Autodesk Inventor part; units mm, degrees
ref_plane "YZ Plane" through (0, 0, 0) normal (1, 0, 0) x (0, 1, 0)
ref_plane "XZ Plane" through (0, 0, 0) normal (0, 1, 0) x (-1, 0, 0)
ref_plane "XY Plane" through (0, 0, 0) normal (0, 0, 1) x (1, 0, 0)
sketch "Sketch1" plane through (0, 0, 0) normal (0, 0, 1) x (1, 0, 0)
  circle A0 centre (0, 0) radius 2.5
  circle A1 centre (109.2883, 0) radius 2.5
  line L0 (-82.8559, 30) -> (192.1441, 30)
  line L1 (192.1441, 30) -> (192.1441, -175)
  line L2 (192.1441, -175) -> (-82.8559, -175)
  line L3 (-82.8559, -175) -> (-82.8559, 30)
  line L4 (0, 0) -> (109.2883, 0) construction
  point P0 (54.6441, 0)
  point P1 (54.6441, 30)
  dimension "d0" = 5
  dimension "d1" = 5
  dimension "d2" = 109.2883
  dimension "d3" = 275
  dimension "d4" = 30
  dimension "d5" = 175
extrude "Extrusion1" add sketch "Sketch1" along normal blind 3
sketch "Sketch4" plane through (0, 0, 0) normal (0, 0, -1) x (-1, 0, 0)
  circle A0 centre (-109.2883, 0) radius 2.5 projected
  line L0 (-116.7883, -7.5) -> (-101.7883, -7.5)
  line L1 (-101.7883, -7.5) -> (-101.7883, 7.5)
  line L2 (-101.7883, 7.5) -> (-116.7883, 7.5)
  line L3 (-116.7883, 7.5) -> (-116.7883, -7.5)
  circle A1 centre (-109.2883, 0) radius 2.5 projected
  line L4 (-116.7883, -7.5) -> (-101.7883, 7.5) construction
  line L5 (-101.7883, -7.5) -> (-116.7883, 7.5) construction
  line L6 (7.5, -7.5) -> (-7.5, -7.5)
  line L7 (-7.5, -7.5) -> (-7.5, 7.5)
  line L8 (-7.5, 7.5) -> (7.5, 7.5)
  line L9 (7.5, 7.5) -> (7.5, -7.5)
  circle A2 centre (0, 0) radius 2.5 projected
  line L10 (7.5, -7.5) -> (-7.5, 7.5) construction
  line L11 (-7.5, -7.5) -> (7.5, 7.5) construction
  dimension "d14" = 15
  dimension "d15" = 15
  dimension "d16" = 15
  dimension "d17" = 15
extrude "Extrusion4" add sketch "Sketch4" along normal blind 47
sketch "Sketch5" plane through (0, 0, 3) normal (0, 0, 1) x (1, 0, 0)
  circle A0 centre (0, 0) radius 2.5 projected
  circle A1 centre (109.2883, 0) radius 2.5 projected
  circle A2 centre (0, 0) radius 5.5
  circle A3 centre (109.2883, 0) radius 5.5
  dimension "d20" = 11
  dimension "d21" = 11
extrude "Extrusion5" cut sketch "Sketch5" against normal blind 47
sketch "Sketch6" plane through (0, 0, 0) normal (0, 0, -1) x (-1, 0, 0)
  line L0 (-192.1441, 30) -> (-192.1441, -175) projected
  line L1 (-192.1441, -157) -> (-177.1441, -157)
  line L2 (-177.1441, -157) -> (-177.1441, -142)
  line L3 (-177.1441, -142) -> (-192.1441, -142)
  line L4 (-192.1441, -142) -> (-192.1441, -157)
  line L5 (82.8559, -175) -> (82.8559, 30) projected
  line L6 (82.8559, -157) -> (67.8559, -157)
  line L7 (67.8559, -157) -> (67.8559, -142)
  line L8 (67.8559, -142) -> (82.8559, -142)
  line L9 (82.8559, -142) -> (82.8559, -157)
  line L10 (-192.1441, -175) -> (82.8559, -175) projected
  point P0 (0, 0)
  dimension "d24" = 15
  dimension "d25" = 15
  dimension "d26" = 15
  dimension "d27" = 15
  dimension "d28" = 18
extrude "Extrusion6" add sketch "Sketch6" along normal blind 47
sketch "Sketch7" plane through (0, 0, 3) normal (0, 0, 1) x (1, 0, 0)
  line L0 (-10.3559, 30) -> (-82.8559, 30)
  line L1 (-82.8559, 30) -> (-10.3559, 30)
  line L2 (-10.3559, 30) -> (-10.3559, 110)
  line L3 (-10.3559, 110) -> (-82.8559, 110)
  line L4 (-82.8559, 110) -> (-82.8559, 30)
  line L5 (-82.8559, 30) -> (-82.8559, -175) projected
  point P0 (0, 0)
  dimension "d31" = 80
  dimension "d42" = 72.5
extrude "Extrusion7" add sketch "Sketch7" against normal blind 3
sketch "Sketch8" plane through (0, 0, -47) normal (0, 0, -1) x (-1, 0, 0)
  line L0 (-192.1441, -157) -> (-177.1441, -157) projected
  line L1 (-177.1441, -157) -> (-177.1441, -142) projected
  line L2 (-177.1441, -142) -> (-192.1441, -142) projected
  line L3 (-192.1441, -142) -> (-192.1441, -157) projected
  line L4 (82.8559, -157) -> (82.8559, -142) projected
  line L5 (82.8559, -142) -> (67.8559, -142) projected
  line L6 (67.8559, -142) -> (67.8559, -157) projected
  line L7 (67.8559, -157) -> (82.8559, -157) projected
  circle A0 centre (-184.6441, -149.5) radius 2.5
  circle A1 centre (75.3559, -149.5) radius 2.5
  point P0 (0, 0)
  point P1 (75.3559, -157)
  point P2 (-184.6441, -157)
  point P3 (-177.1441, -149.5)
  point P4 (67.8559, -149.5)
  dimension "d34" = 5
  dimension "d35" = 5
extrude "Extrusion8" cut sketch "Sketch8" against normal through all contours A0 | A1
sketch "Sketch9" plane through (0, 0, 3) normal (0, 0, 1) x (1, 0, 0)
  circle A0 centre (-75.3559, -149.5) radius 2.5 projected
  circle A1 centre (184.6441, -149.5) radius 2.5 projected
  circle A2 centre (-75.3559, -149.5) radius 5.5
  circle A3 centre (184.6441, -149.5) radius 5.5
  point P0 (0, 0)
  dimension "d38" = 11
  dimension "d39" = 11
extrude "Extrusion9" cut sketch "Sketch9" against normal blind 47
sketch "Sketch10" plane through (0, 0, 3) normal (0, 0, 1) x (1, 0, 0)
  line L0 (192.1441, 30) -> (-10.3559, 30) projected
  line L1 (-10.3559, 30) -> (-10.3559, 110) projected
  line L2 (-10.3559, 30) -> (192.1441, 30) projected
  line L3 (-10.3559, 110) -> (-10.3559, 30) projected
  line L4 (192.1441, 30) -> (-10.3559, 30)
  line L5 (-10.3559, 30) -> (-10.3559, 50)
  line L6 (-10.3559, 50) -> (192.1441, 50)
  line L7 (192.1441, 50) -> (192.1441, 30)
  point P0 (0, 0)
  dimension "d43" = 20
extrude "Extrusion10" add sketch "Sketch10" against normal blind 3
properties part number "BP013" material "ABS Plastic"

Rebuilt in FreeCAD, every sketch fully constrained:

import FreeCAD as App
import Part
import Sketcher
from FreeCAD import Vector
Q = App.Units.Quantity

doc = App.newDocument("Part")
body = doc.addObject("PartDesign::Body", "Body")

# Sketch on XY plane
sketch1 = body.newObject("Sketcher::SketchObject", "Sketch")
sketch1.AttachmentSupport = (doc.getObject("XY_Plane"), [""])
sketch1.MapMode = "FlatFace"
sketch1.addGeometry([
    Part.LineSegment(Vector(192.1441, 30, 0), Vector(-82.8559, 30, 0)),  # 0
    Part.LineSegment(Vector(-82.8559, 30, 0), Vector(-82.8559, -175, 0)),  # 1
    Part.LineSegment(Vector(-82.8559, -175, 0), Vector(192.1441, -175, 0)),  # 2
    Part.LineSegment(Vector(192.1441, -175, 0), Vector(192.1441, 30, 0)),  # 3
    Part.Circle(Vector(0, 0, 0), Vector(0, 0, 1), 2.5),  # 4
    Part.Circle(Vector(109.2883, 0, 0), Vector(0, 0, 1), 2.5),  # 5
], False)
sketch1.addConstraint([
    Sketcher.Constraint("Coincident", 0, 2, 1, 1),
    Sketcher.Constraint("Coincident", 1, 2, 2, 1),
    Sketcher.Constraint("Coincident", 2, 2, 3, 1),
    Sketcher.Constraint("Coincident", 3, 2, 0, 1),
    Sketcher.Constraint("Horizontal", 0),
    Sketcher.Constraint("Vertical", 1),
    Sketcher.Constraint("Horizontal", 2),
    Sketcher.Constraint("Vertical", 3),
    Sketcher.Constraint("Coincident", 4, 3, -1, 1),
    Sketcher.Constraint("Equal", 4, 5),
    Sketcher.Constraint("PointOnObject", 5, 3, -1),
    Sketcher.Constraint("Diameter", 4, Q("5 mm")),
    Sketcher.Constraint("DistanceX", 0, 2, 0, 1, Q("275 mm")),
    Sketcher.Constraint("DistanceY", -1, 1, 0, 2, Q("30 mm")),
    Sketcher.Constraint("DistanceY", 1, 2, -1, 1, Q("175 mm")),
    Sketcher.Constraint("DistanceX", -1, 1, 5, 3, Q("109.2883 mm")),
    Sketcher.Constraint("DistanceX", 0, 2, -1, 1, Q("82.856 mm")),
])
pad1 = body.newObject("PartDesign::Pad", "Pad")
pad1.Profile = sketch1
pad1.Length = 3

# Sketch on XY plane
sketch2 = body.newObject("Sketcher::SketchObject", "Sketch001")
sketch2.AttachmentSupport = (doc.getObject("XY_Plane"), [""])
sketch2.MapMode = "FlatFace"
sketch2.addGeometry([
    Part.LineSegment(Vector(116.7883, 7.5, 0), Vector(116.7883, -7.5, 0)),  # 0
    Part.LineSegment(Vector(116.7883, -7.5, 0), Vector(101.7883, -7.5, 0)),  # 1
    Part.LineSegment(Vector(101.7883, -7.5, 0), Vector(101.7883, 7.5, 0)),  # 2
    Part.LineSegment(Vector(101.7883, 7.5, 0), Vector(116.7883, 7.5, 0)),  # 3
    Part.Circle(Vector(109.2883, 0, 0), Vector(0, 0, 1), 2.5),  # 4
    Part.LineSegment(Vector(7.5, -7.5, 0), Vector(-7.5, -7.5, 0)),  # 5
    Part.LineSegment(Vector(-7.5, -7.5, 0), Vector(-7.5, 7.5, 0)),  # 6
    Part.LineSegment(Vector(-7.5, 7.5, 0), Vector(7.5, 7.5, 0)),  # 7
    Part.LineSegment(Vector(7.5, 7.5, 0), Vector(7.5, -7.5, 0)),  # 8
    Part.Circle(Vector(0, 0, 0), Vector(0, 0, 1), 2.5),  # 9
], False)
sketch2.addConstraint([
    Sketcher.Constraint("Coincident", 0, 2, 1, 1),
    Sketcher.Constraint("Coincident", 1, 2, 2, 1),
    Sketcher.Constraint("Coincident", 2, 2, 3, 1),
    Sketcher.Constraint("Coincident", 3, 2, 0, 1),
    Sketcher.Constraint("Coincident", 5, 2, 6, 1),
    Sketcher.Constraint("Coincident", 6, 2, 7, 1),
    Sketcher.Constraint("Coincident", 7, 2, 8, 1),
    Sketcher.Constraint("Coincident", 8, 2, 5, 1),
    Sketcher.Constraint("Vertical", 0),
    Sketcher.Constraint("Horizontal", 1),
    Sketcher.Constraint("Vertical", 2),
    Sketcher.Constraint("Horizontal", 3),
    Sketcher.Constraint("Horizontal", 5),
    Sketcher.Constraint("Vertical", 6),
    Sketcher.Constraint("Horizontal", 7),
    Sketcher.Constraint("Vertical", 8),
    Sketcher.Constraint("Coincident", 9, 3, -1, 1),
    Sketcher.Constraint("Equal", 4, 9),
    Sketcher.Constraint("Symmetric", 5, 2, 7, 2, -1, 1),
    Sketcher.Constraint("PointOnObject", 4, 3, -1),
    Sketcher.Constraint("Horizontal", 1, 2, 5, 2),
    Sketcher.Constraint("Horizontal", 3, 2, 6, 2),
    Sketcher.Constraint("Equal", 3, 5),
    Sketcher.Constraint("Equal", 7, 0),
    Sketcher.Constraint("DistanceX", 1, 2, 1, 1, Q("15 mm")),
    Sketcher.Constraint("Diameter", 4, Q("5 mm")),
    Sketcher.Constraint("DistanceX", 4, 3, 0, 2, Q("7.5 mm")),
    Sketcher.Constraint("DistanceX", -1, 1, 4, 3, Q("109.2883 mm")),
])
pad2 = body.newObject("PartDesign::Pad", "Pad001")
pad2.Profile = sketch2
pad2.Length = 47
pad2.Reversed = True

# Sketch on XY plane
sketch3 = body.newObject("Sketcher::SketchObject", "Sketch002")
sketch3.AttachmentSupport = (doc.getObject("XY_Plane"), [""])
sketch3.MapMode = "FlatFace"
sketch3.AttachmentOffset = App.Placement(Vector(0, 0, 3), App.Rotation())
sketch3.addGeometry([
    Part.Circle(Vector(0, 0, 0), Vector(0, 0, 1), 5.5),
    Part.Circle(Vector(0, 0, 0), Vector(0, 0, 1), 2.5),
    Part.Circle(Vector(109.2883, 0, 0), Vector(0, 0, 1), 5.5),
    Part.Circle(Vector(109.2883, 0, 0), Vector(0, 0, 1), 2.5),
], False)
sketch3.addConstraint([
    Sketcher.Constraint("Coincident", 0, 3, -1, 1),
    Sketcher.Constraint("Coincident", 1, 3, -1, 1),
    Sketcher.Constraint("Coincident", 3, 3, 2, 3),
    Sketcher.Constraint("Equal", 0, 2),
    Sketcher.Constraint("Equal", 1, 3),
    Sketcher.Constraint("PointOnObject", 2, 3, -1),
    Sketcher.Constraint("Diameter", 0, Q("11 mm")),
    Sketcher.Constraint("Diameter", 1, Q("5 mm")),
    Sketcher.Constraint("DistanceX", -1, 1, 2, 3, Q("109.2883 mm")),
])
pocket1 = body.newObject("PartDesign::Pocket", "Pocket")
pocket1.Profile = sketch3
pocket1.Length = 47

# Sketch on XY plane
sketch4 = body.newObject("Sketcher::SketchObject", "Sketch003")
sketch4.AttachmentSupport = (doc.getObject("XY_Plane"), [""])
sketch4.MapMode = "FlatFace"
sketch4.addGeometry([
    Part.LineSegment(Vector(177.1441, -142, 0), Vector(192.1441, -142, 0)),  # 0
    Part.LineSegment(Vector(192.1441, -142, 0), Vector(192.1441, -157, 0)),  # 1
    Part.LineSegment(Vector(192.1441, -157, 0), Vector(177.1441, -157, 0)),  # 2
    Part.LineSegment(Vector(177.1441, -157, 0), Vector(177.1441, -142, 0)),  # 3
    Part.LineSegment(Vector(-67.8559, -157, 0), Vector(-82.8559, -157, 0)),  # 4
    Part.LineSegment(Vector(-82.8559, -157, 0), Vector(-82.8559, -142, 0)),  # 5
    Part.LineSegment(Vector(-82.8559, -142, 0), Vector(-67.8559, -142, 0)),  # 6
    Part.LineSegment(Vector(-67.8559, -142, 0), Vector(-67.8559, -157, 0)),  # 7
], False)
sketch4.addConstraint([
    Sketcher.Constraint("Coincident", 0, 2, 1, 1),
    Sketcher.Constraint("Coincident", 1, 2, 2, 1),
    Sketcher.Constraint("Coincident", 2, 2, 3, 1),
    Sketcher.Constraint("Coincident", 3, 2, 0, 1),
    Sketcher.Constraint("Coincident", 4, 2, 5, 1),
    Sketcher.Constraint("Coincident", 5, 2, 6, 1),
    Sketcher.Constraint("Coincident", 6, 2, 7, 1),
    Sketcher.Constraint("Coincident", 7, 2, 4, 1),
    Sketcher.Constraint("Horizontal", 0),
    Sketcher.Constraint("Vertical", 1),
    Sketcher.Constraint("Horizontal", 2),
    Sketcher.Constraint("Vertical", 3),
    Sketcher.Constraint("Horizontal", 4),
    Sketcher.Constraint("Vertical", 5),
    Sketcher.Constraint("Horizontal", 6),
    Sketcher.Constraint("Vertical", 7),
    Sketcher.Constraint("Horizontal", 2, 2, 4, 2),
    Sketcher.Constraint("Horizontal", 3, 2, 5, 2),
    Sketcher.Constraint("Equal", 2, 4),
    Sketcher.Constraint("Equal", 6, 1),
    Sketcher.Constraint("DistanceX", 0, 1, 0, 2, Q("15 mm")),
    Sketcher.Constraint("DistanceY", 0, 2, -1, 1, Q("142 mm")),
    Sketcher.Constraint("DistanceX", 4, 2, 2, 2, Q("260 mm")),
    Sketcher.Constraint("DistanceX", -1, 1, 0, 2, Q("192.144 mm")),
])
pad3 = body.newObject("PartDesign::Pad", "Pad002")
pad3.Profile = sketch4
pad3.Length = 47
pad3.Reversed = True

# Sketch on XY plane
sketch5 = body.newObject("Sketcher::SketchObject", "Sketch004")
sketch5.AttachmentSupport = (doc.getObject("XY_Plane"), [""])
sketch5.MapMode = "FlatFace"
sketch5.AttachmentOffset = App.Placement(Vector(0, 0, 3), App.Rotation())
sketch5.addGeometry([
    Part.LineSegment(Vector(-82.8559, 30, 0), Vector(-10.3559, 30, 0)),
    Part.LineSegment(Vector(-10.3559, 30, 0), Vector(-10.3559, 110, 0)),
    Part.LineSegment(Vector(-10.3559, 110, 0), Vector(-82.8559, 110, 0)),
    Part.LineSegment(Vector(-82.8559, 110, 0), Vector(-82.8559, 30, 0)),
], False)
sketch5.addConstraint([
    Sketcher.Constraint("Coincident", 0, 2, 1, 1),
    Sketcher.Constraint("Coincident", 1, 2, 2, 1),
    Sketcher.Constraint("Coincident", 2, 2, 3, 1),
    Sketcher.Constraint("Coincident", 3, 2, 0, 1),
    Sketcher.Constraint("Horizontal", 0),
    Sketcher.Constraint("Vertical", 1),
    Sketcher.Constraint("Horizontal", 2),
    Sketcher.Constraint("Vertical", 3),
    Sketcher.Constraint("DistanceY", 1, 1, 1, 2, Q("80 mm")),
    Sketcher.Constraint("DistanceX", 0, 1, 0, 2, Q("72.5 mm")),
    Sketcher.Constraint("DistanceY", -1, 1, 0, 2, Q("30 mm")),
    Sketcher.Constraint("DistanceX", 0, 2, -1, 1, Q("10.356 mm")),
])
pad4 = body.newObject("PartDesign::Pad", "Pad003")
pad4.Profile = sketch5
pad4.Length = 3
pad4.Reversed = True

# Sketch on XY plane
sketch6 = body.newObject("Sketcher::SketchObject", "Sketch005")
sketch6.AttachmentSupport = (doc.getObject("XY_Plane"), [""])
sketch6.MapMode = "FlatFace"
sketch6.AttachmentOffset = App.Placement(Vector(0, 0, -47), App.Rotation())
sketch6.addGeometry([
    Part.Circle(Vector(184.6441, -149.5, 0), Vector(0, 0, 1), 2.5),
    Part.Circle(Vector(-75.3559, -149.5, 0), Vector(0, 0, 1), 2.5),
], False)
sketch6.addConstraint([
    Sketcher.Constraint("Equal", 0, 1),
    Sketcher.Constraint("Horizontal", 0, 3, 1, 3),
    Sketcher.Constraint("Diameter", 0, Q("5 mm")),
    Sketcher.Constraint("DistanceX", 1, 3, 0, 3, Q("260 mm")),
    Sketcher.Constraint("DistanceY", 0, 3, -1, 1, Q("149.5 mm")),
    Sketcher.Constraint("DistanceX", -1, 1, 0, 3, Q("184.644 mm")),
])
pocket2 = body.newObject("PartDesign::Pocket", "Pocket001")
pocket2.Profile = sketch6
pocket2.Type = "ThroughAll"
pocket2.Reversed = True

# Sketch on XY plane
sketch7 = body.newObject("Sketcher::SketchObject", "Sketch006")
sketch7.AttachmentSupport = (doc.getObject("XY_Plane"), [""])
sketch7.MapMode = "FlatFace"
sketch7.AttachmentOffset = App.Placement(Vector(0, 0, 3), App.Rotation())
sketch7.addGeometry([
    Part.Circle(Vector(-75.3559, -149.5, 0), Vector(0, 0, 1), 5.5),
    Part.Circle(Vector(-75.3559, -149.5, 0), Vector(0, 0, 1), 2.5),
    Part.Circle(Vector(184.6441, -149.5, 0), Vector(0, 0, 1), 5.5),
    Part.Circle(Vector(184.6441, -149.5, 0), Vector(0, 0, 1), 2.5),
], False)
sketch7.addConstraint([
    Sketcher.Constraint("Coincident", 1, 3, 0, 3),
    Sketcher.Constraint("Coincident", 3, 3, 2, 3),
    Sketcher.Constraint("Equal", 0, 2),
    Sketcher.Constraint("Equal", 1, 3),
    Sketcher.Constraint("Horizontal", 1, 3, 2, 3),
    Sketcher.Constraint("Diameter", 0, Q("11 mm")),
    Sketcher.Constraint("Diameter", 1, Q("5 mm")),
    Sketcher.Constraint("DistanceX", 0, 3, 2, 3, Q("260 mm")),
    Sketcher.Constraint("DistanceY", 0, 3, -1, 1, Q("149.5 mm")),
    Sketcher.Constraint("DistanceX", 0, 3, -1, 1, Q("75.356 mm")),
])
pocket3 = body.newObject("PartDesign::Pocket", "Pocket002")
pocket3.Profile = sketch7
pocket3.Length = 47

# Sketch on XY plane
sketch8 = body.newObject("Sketcher::SketchObject", "Sketch007")
sketch8.AttachmentSupport = (doc.getObject("XY_Plane"), [""])
sketch8.MapMode = "FlatFace"
sketch8.AttachmentOffset = App.Placement(Vector(0, 0, 3), App.Rotation())
sketch8.addGeometry([
    Part.LineSegment(Vector(-10.3559, 30, 0), Vector(192.1441, 30, 0)),
    Part.LineSegment(Vector(192.1441, 30, 0), Vector(192.1441, 50, 0)),
    Part.LineSegment(Vector(192.1441, 50, 0), Vector(-10.3559, 50, 0)),
    Part.LineSegment(Vector(-10.3559, 50, 0), Vector(-10.3559, 30, 0)),
], False)
sketch8.addConstraint([
    Sketcher.Constraint("Coincident", 0, 2, 1, 1),
    Sketcher.Constraint("Coincident", 1, 2, 2, 1),
    Sketcher.Constraint("Coincident", 2, 2, 3, 1),
    Sketcher.Constraint("Coincident", 3, 2, 0, 1),
    Sketcher.Constraint("Horizontal", 0),
    Sketcher.Constraint("Vertical", 1),
    Sketcher.Constraint("Horizontal", 2),
    Sketcher.Constraint("Vertical", 3),
    Sketcher.Constraint("DistanceY", 1, 1, 1, 2, Q("20 mm")),
    Sketcher.Constraint("DistanceX", 0, 1, 0, 2, Q("202.5 mm")),
    Sketcher.Constraint("DistanceY", -1, 1, 0, 2, Q("30 mm")),
    Sketcher.Constraint("DistanceX", -1, 1, 0, 2, Q("192.144 mm")),
])
pad5 = body.newObject("PartDesign::Pad", "Pad004")
pad5.Profile = sketch8
pad5.Length = 3
pad5.Reversed = True

doc.recompute()
